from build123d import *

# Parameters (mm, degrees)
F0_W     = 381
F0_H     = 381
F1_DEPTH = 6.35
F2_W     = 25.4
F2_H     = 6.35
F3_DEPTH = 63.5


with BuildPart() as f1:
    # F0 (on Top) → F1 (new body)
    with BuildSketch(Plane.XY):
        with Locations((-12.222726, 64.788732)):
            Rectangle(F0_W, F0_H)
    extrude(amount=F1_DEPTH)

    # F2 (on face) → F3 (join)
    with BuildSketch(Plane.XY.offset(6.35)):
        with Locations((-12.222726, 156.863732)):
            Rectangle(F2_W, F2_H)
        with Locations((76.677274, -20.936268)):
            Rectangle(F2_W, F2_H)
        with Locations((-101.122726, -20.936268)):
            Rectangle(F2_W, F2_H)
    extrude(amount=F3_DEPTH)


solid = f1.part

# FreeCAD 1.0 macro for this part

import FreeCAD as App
import Part
import Sketcher
Q = App.Units.Quantity

doc = App.newDocument("Part")
body = doc.addObject("PartDesign::Body", "Body")

# Sketch on XY plane
sketch1 = doc.addObject("Sketcher::SketchObject", "Sketch")
body.addObject(sketch1)
sketch1.AttachmentSupport = (doc.XY_Plane, [""])
sketch1.MapMode = "FlatFace"
sketch1.addGeometry([
    Part.LineSegment(App.Vector(-203, 255, 0), App.Vector(-203, -126, 0)),
    Part.LineSegment(App.Vector(-203, -126, 0), App.Vector(178, -126, 0)),
    Part.LineSegment(App.Vector(178, -126, 0), App.Vector(178, 255, 0)),
    Part.LineSegment(App.Vector(178, 255, 0), App.Vector(-203, 255, 0)),
], False)
sketch1.addConstraint([
    Sketcher.Constraint("Coincident", 0, 2, 1, 1),
    Sketcher.Constraint("Coincident", 1, 2, 2, 1),
    Sketcher.Constraint("Coincident", 2, 2, 3, 1),
    Sketcher.Constraint("Coincident", 3, 2, 0, 1),
    Sketcher.Constraint("Vertical", 0),
    Sketcher.Constraint("Horizontal", 1),
    Sketcher.Constraint("Vertical", 2),
    Sketcher.Constraint("Horizontal", 3),
    Sketcher.Constraint("Equal", 3, 0),
    Sketcher.Constraint("DistanceX", 1, 1, 1, 2, Q("15 in")),
    Sketcher.Constraint("DistanceY", 0, 2, -1, 1, 125.711268),
    Sketcher.Constraint("DistanceX", 0, 2, -1, 1, 202.722726),
])
pad1 = doc.addObject("PartDesign::Pad", "Pad")
body.addObject(pad1)
pad1.Profile = sketch1
pad1.Length = Q("0.25 in")

# Sketch on XY plane
sketch2 = doc.addObject("Sketcher::SketchObject", "Sketch001")
body.addObject(sketch2)
sketch2.AttachmentSupport = (doc.XY_Plane, [""])
sketch2.MapMode = "FlatFace"
sketch2.AttachmentOffset = App.Placement(App.Vector(0, 0, 0.25 * 25.4), App.Rotation())
sketch2.addGeometry([
    Part.LineSegment(App.Vector(-25, 160, 0), App.Vector(-25, 154, 0)),  # 0
    Part.LineSegment(App.Vector(-25, 154, 0), App.Vector(0, 154, 0)),  # 1
    Part.LineSegment(App.Vector(0, 154, 0), App.Vector(0, 160, 0)),  # 2
    Part.LineSegment(App.Vector(0, 160, 0), App.Vector(-25, 160, 0)),  # 3
    Part.LineSegment(App.Vector(64, -18, 0), App.Vector(64, -24, 0)),  # 4
    Part.LineSegment(App.Vector(64, -24, 0), App.Vector(89, -24, 0)),  # 5
    Part.LineSegment(App.Vector(89, -24, 0), App.Vector(89, -18, 0)),  # 6
    Part.LineSegment(App.Vector(89, -18, 0), App.Vector(64, -18, 0)),  # 7
    Part.LineSegment(App.Vector(-114, -18, 0), App.Vector(-114, -24, 0)),  # 8
    Part.LineSegment(App.Vector(-114, -24, 0), App.Vector(-88, -24, 0)),  # 9
    Part.LineSegment(App.Vector(-88, -24, 0), App.Vector(-88, -18, 0)),  # 10
    Part.LineSegment(App.Vector(-88, -18, 0), App.Vector(-114, -18, 0)),  # 11
], False)
sketch2.addConstraint([
    Sketcher.Constraint("Coincident", 0, 2, 1, 1),
    Sketcher.Constraint("Coincident", 1, 2, 2, 1),
    Sketcher.Constraint("Coincident", 2, 2, 3, 1),
    Sketcher.Constraint("Coincident", 3, 2, 0, 1),
    Sketcher.Constraint("Coincident", 4, 2, 5, 1),
    Sketcher.Constraint("Coincident", 5, 2, 6, 1),
    Sketcher.Constraint("Coincident", 6, 2, 7, 1),
    Sketcher.Constraint("Coincident", 7, 2, 4, 1),
    Sketcher.Constraint("Coincident", 8, 2, 9, 1),
    Sketcher.Constraint("Coincident", 9, 2, 10, 1),
    Sketcher.Constraint("Coincident", 10, 2, 11, 1),
    Sketcher.Constraint("Coincident", 11, 2, 8, 1),
    Sketcher.Constraint("Vertical", 0),
    Sketcher.Constraint("Horizontal", 1),
    Sketcher.Constraint("Vertical", 2),
    Sketcher.Constraint("Horizontal", 3),
    Sketcher.Constraint("Vertical", 4),
    Sketcher.Constraint("Horizontal", 5),
    Sketcher.Constraint("Vertical", 6),
    Sketcher.Constraint("Horizontal", 7),
    Sketcher.Constraint("Vertical", 8),
    Sketcher.Constraint("Horizontal", 9),
    Sketcher.Constraint("Vertical", 10),
    Sketcher.Constraint("Horizontal", 11),
    Sketcher.Constraint("Horizontal", 5, 2, 8, 2),
    Sketcher.Constraint("Horizontal", 7, 2, 10, 2),
    Sketcher.Constraint("Equal", 3, 5),
    Sketcher.Constraint("Equal", 7, 9),
    Sketcher.Constraint("Equal", 2, 4),
    Sketcher.Constraint("DistanceX", 1, 1, 1, 2, Q("1 in")),
    Sketcher.Constraint("DistanceY", 4, 2, 1, 2, Q("7 in")),
    Sketcher.Constraint("DistanceX", 8, 2, 4, 2, Q("7 in")),
    Sketcher.Constraint("DistanceY", 0, 2, 0, 1, Q("0.25 in")),
    Sketcher.Constraint("DistanceX", 1, 2, 4, 2, Q("2.5 in")),
    Sketcher.Constraint("DistanceY", -1, 1, 0, 2, 153.688732),
    Sketcher.Constraint("DistanceX", 0, 2, -1, 1, 24.922726),
])
pad2 = doc.addObject("PartDesign::Pad", "Pad001")
body.addObject(pad2)
pad2.Profile = sketch2
pad2.Length = Q("2.5 in")

doc.recompute()
